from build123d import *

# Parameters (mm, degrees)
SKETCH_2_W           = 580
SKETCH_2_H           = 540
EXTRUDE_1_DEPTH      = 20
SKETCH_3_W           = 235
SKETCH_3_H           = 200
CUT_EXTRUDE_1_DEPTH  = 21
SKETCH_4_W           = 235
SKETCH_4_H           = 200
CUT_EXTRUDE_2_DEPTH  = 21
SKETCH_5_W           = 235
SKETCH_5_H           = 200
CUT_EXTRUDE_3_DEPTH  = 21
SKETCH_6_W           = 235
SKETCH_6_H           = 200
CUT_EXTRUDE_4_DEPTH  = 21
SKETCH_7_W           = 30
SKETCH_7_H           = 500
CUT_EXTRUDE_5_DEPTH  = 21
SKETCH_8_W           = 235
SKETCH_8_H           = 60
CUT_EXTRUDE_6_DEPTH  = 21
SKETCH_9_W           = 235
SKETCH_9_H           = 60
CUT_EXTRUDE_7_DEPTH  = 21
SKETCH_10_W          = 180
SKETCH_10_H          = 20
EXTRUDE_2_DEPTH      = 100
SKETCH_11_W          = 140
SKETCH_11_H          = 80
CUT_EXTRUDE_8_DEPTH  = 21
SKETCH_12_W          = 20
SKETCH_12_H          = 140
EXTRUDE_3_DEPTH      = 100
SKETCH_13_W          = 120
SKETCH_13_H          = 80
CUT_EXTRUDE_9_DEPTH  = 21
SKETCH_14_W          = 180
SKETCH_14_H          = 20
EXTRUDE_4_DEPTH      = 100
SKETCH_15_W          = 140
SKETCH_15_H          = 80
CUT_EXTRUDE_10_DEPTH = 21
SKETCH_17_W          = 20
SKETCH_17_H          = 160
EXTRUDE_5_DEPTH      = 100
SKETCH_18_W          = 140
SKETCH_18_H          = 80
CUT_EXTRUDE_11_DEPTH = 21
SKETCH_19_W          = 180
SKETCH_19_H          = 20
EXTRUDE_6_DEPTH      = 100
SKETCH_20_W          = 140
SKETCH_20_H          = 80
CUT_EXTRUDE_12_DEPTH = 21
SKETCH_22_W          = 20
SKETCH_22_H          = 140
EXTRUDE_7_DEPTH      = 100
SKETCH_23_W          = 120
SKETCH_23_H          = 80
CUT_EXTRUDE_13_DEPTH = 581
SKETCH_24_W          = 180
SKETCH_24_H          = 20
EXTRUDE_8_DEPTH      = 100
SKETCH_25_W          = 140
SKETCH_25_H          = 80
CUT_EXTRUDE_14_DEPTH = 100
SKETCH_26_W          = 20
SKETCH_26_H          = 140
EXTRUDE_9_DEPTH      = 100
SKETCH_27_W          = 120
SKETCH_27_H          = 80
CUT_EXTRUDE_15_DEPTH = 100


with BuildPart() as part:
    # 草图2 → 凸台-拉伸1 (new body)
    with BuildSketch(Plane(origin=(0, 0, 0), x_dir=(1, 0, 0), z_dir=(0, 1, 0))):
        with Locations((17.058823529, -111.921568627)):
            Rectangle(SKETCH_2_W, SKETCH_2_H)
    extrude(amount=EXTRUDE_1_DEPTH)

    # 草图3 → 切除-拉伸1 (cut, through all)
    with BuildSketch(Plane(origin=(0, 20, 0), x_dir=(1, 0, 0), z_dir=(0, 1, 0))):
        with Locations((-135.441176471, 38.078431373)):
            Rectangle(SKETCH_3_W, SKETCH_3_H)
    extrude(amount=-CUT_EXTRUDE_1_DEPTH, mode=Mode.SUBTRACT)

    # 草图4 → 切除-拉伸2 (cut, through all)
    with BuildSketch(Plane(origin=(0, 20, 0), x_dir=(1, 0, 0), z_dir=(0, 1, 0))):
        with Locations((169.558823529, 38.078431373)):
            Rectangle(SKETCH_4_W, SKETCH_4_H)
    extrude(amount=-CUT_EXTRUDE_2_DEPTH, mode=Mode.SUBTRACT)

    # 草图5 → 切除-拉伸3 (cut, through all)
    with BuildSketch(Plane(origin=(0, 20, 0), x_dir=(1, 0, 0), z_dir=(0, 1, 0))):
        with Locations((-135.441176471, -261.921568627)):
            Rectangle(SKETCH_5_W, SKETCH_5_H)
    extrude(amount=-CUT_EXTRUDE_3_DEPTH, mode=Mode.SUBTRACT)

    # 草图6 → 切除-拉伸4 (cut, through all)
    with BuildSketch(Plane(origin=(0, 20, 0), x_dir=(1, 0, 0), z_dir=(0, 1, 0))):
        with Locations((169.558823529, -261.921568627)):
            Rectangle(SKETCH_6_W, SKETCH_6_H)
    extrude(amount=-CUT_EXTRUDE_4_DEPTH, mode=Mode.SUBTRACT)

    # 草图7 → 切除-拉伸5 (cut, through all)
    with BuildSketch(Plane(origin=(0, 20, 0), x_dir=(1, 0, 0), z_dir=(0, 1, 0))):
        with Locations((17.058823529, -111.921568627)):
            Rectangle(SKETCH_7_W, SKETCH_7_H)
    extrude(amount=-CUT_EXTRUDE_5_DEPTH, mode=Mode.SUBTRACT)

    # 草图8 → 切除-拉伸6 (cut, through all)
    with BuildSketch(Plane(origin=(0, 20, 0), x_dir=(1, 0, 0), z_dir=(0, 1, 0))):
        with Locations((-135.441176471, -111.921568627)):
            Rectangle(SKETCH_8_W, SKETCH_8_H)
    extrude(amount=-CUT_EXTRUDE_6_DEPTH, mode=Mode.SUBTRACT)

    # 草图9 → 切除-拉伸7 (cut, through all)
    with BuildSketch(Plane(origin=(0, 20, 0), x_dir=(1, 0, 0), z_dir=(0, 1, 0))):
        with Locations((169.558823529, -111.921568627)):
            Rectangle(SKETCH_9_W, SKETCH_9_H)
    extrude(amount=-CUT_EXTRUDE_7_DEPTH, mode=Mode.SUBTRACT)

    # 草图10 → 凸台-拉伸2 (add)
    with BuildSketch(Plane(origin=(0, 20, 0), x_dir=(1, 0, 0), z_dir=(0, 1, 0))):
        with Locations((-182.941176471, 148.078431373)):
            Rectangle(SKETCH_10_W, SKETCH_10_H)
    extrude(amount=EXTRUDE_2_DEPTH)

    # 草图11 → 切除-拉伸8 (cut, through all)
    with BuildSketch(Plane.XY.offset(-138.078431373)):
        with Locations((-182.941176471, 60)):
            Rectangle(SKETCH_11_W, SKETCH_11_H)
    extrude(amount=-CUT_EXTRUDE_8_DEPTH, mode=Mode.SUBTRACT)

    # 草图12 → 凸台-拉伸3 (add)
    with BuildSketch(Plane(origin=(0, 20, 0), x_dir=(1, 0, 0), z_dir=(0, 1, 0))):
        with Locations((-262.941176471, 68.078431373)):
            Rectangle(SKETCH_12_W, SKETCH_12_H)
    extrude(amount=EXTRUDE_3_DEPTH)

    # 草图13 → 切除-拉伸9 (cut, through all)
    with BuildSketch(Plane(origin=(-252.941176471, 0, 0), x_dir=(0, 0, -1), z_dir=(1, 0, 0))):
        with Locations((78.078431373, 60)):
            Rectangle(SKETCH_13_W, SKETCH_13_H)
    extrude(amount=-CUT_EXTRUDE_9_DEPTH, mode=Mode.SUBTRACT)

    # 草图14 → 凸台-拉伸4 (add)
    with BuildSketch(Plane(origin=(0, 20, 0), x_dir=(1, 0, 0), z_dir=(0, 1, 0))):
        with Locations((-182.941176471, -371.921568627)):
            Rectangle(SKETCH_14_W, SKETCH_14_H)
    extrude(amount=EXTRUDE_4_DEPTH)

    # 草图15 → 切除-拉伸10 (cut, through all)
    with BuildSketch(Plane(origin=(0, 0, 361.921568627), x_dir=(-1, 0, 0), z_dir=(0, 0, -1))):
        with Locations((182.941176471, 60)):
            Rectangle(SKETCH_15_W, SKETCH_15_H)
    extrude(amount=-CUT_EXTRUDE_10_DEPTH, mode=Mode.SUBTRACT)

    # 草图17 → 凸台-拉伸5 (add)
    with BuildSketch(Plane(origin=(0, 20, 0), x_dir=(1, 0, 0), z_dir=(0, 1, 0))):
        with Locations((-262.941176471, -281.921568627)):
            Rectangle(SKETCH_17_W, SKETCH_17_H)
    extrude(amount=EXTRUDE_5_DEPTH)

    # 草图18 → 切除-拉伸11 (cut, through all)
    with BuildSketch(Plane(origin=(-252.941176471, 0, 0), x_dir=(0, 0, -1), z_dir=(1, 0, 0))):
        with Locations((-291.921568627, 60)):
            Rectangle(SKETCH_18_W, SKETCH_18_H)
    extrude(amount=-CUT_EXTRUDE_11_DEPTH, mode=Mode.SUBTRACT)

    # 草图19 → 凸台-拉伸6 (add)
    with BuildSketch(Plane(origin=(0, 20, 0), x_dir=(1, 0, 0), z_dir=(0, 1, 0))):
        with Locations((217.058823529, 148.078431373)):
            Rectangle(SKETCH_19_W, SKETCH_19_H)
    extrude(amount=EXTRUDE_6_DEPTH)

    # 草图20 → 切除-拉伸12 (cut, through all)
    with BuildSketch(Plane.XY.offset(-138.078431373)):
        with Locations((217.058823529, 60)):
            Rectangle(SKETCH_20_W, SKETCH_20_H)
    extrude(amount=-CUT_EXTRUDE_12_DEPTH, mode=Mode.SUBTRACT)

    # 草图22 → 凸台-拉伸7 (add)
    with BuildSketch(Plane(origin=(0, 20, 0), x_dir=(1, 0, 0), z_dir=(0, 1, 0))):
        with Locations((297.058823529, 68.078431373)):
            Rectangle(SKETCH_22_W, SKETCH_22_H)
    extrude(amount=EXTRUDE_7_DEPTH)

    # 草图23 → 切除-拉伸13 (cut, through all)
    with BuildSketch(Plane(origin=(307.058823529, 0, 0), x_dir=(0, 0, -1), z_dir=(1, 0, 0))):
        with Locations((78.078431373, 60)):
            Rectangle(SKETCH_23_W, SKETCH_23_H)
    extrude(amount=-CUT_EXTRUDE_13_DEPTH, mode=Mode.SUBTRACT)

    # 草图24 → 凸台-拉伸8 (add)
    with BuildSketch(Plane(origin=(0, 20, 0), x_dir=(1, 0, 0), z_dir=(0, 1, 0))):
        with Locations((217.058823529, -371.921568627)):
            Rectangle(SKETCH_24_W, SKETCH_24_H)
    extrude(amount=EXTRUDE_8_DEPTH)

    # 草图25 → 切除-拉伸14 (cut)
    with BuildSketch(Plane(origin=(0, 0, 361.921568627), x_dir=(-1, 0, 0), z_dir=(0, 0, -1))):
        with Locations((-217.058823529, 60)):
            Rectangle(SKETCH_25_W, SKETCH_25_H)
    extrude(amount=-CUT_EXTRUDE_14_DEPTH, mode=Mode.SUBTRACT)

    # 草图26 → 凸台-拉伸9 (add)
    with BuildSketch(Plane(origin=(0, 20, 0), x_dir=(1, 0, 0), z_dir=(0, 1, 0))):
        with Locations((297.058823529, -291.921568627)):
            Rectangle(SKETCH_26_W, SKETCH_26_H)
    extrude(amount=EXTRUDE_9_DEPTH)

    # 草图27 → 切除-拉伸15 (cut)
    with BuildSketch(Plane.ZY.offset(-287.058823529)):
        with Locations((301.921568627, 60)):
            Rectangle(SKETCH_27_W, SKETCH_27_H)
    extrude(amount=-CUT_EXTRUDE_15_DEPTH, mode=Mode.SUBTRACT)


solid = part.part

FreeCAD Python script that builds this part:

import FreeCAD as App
import Part
import Sketcher

V = App.Vector

doc = App.newDocument("Part")
params = doc.addObject("Spreadsheet::Sheet", "Params")
for row, (alias, value) in enumerate([
    ("sketch1_width", "580 mm"),
    ("sketch1_height", "540 mm"),
    ("pad1_length", "20 mm"),
    ("sketch2_width", "235 mm"),
    ("sketch2_height", "200 mm"),
    ("sketch3_width", "235 mm"),
    ("sketch3_height", "200 mm"),
    ("sketch4_width", "235 mm"),
    ("sketch4_height", "200 mm"),
    ("sketch5_width", "235 mm"),
    ("sketch5_height", "200 mm"),
    ("sketch6_width", "30 mm"),
    ("sketch6_height", "500 mm"),
    ("sketch7_width", "235 mm"),
    ("sketch7_height", "60 mm"),
    ("sketch8_width", "235 mm"),
    ("sketch8_height", "60 mm"),
    ("sketch9_width", "180 mm"),
    ("sketch9_height", "20 mm"),
    ("pad2_length", "100 mm"),
    ("sketch10_width", "140 mm"),
    ("sketch10_height", "80 mm"),
    ("sketch11_width", "20 mm"),
    ("sketch11_height", "140 mm"),
    ("pad3_length", "100 mm"),
    ("sketch12_width", "80 mm"),
    ("sketch12_height", "120 mm"),
    ("sketch13_width", "180 mm"),
    ("sketch13_height", "20 mm"),
    ("pad4_length", "100 mm"),
    ("sketch14_width", "140 mm"),
    ("sketch14_height", "80 mm"),
    ("sketch15_width", "20 mm"),
    ("sketch15_height", "160 mm"),
    ("pad5_length", "100 mm"),
    ("sketch16_width", "80 mm"),
    ("sketch16_height", "140 mm"),
    ("sketch17_width", "180 mm"),
    ("sketch17_height", "20 mm"),
    ("pad6_length", "100 mm"),
    ("sketch18_width", "140 mm"),
    ("sketch18_height", "80 mm"),
    ("sketch19_width", "20 mm"),
    ("sketch19_height", "140 mm"),
    ("pad7_length", "100 mm"),
    ("sketch20_width", "80 mm"),
    ("sketch20_height", "120 mm"),
    ("sketch21_width", "180 mm"),
    ("sketch21_height", "20 mm"),
    ("pad8_length", "100 mm"),
    ("sketch22_width", "140 mm"),
    ("sketch22_height", "80 mm"),
    ("pocket14_length", "100 mm"),
    ("sketch23_width", "20 mm"),
    ("sketch23_height", "140 mm"),
    ("pad9_length", "100 mm"),
    ("sketch24_width", "80 mm"),
    ("sketch24_height", "120 mm"),
    ("pocket15_length", "100 mm"),
], start=1):
    params.set(f"A{row}", alias)
    params.set(f"B{row}", "=" + value)
    params.setAlias(f"B{row}", alias)

body = doc.addObject("PartDesign::Body", "Body")

# Sketch on XZ plane
sketch1 = doc.addObject("Sketcher::SketchObject", "Sketch")
body.addObject(sketch1)
sketch1.AttachmentSupport = (doc.XZ_Plane, [""])
sketch1.MapMode = "FlatFace"
sketch1.addGeometry(Part.LineSegment(V(-273, -158, 0), V(-273, 382, 0)), False)
sketch1.addGeometry(Part.LineSegment(V(-273, 382, 0), V(307, 382, 0)), False)
sketch1.addGeometry(Part.LineSegment(V(307, 382, 0), V(307, -158, 0)), False)
sketch1.addGeometry(Part.LineSegment(V(307, -158, 0), V(-273, -158, 0)), False)
sketch1.addConstraint(Sketcher.Constraint("Coincident", 0, 2, 1, 1))
sketch1.addConstraint(Sketcher.Constraint("Coincident", 1, 2, 2, 1))
sketch1.addConstraint(Sketcher.Constraint("Coincident", 2, 2, 3, 1))
sketch1.addConstraint(Sketcher.Constraint("Coincident", 3, 2, 0, 1))
sketch1.addConstraint(Sketcher.Constraint("Vertical", 0))
sketch1.addConstraint(Sketcher.Constraint("Horizontal", 1))
sketch1.addConstraint(Sketcher.Constraint("Vertical", 2))
sketch1.addConstraint(Sketcher.Constraint("Horizontal", 3))
sketch1.addConstraint(Sketcher.Constraint("DistanceX", 1, 1, 1, 2, 580.0))
sketch1.addConstraint(Sketcher.Constraint("DistanceY", 0, 1, 0, 2, 540.0))
sketch1.addConstraint(Sketcher.Constraint("DistanceY", -1, 1, 0, 2, 381.921569))
sketch1.addConstraint(Sketcher.Constraint("DistanceX", 0, 2, -1, 1, 272.941176))
sketch1.setExpression("Constraints[8]", "Params.sketch1_width")
sketch1.setExpression("Constraints[9]", "Params.sketch1_height")
pad1 = doc.addObject("PartDesign::Pad", "Pad")
body.addObject(pad1)
pad1.Profile = sketch1
pad1.setExpression("Length", "Params.pad1_length")
pad1.Reversed = True

# Sketch on XZ plane
sketch2 = doc.addObject("Sketcher::SketchObject", "Sketch001")
body.addObject(sketch2)
sketch2.AttachmentSupport = (doc.XZ_Plane, [""])
sketch2.MapMode = "FlatFace"
sketch2.AttachmentOffset = App.Placement(V(0, 0, -20), App.Rotation())
sketch2.addGeometry(Part.LineSegment(V(-253, -138, 0), V(-253, 62, 0)), False)
sketch2.addGeometry(Part.LineSegment(V(-253, 62, 0), V(-18, 62, 0)), False)
sketch2.addGeometry(Part.LineSegment(V(-18, 62, 0), V(-18, -138, 0)), False)
sketch2.addGeometry(Part.LineSegment(V(-18, -138, 0), V(-253, -138, 0)), False)
sketch2.addConstraint(Sketcher.Constraint("Coincident", 0, 2, 1, 1))
sketch2.addConstraint(Sketcher.Constraint("Coincident", 1, 2, 2, 1))
sketch2.addConstraint(Sketcher.Constraint("Coincident", 2, 2, 3, 1))
sketch2.addConstraint(Sketcher.Constraint("Coincident", 3, 2, 0, 1))
sketch2.addConstraint(Sketcher.Constraint("Vertical", 0))
sketch2.addConstraint(Sketcher.Constraint("Horizontal", 1))
sketch2.addConstraint(Sketcher.Constraint("Vertical", 2))
sketch2.addConstraint(Sketcher.Constraint("Horizontal", 3))
sketch2.addConstraint(Sketcher.Constraint("DistanceX", 1, 1, 1, 2, 235.0))
sketch2.addConstraint(Sketcher.Constraint("DistanceY", 0, 1, 0, 2, 200.0))
sketch2.addConstraint(Sketcher.Constraint("DistanceY", -1, 1, 0, 2, 61.921569))
sketch2.addConstraint(Sketcher.Constraint("DistanceX", 0, 2, -1, 1, 252.941176))
sketch2.setExpression("Constraints[8]", "Params.sketch2_width")
sketch2.setExpression("Constraints[9]", "Params.sketch2_height")
pocket1 = doc.addObject("PartDesign::Pocket", "Pocket")
body.addObject(pocket1)
pocket1.Profile = sketch2
pocket1.Type = "ThroughAll"
pocket1.Reversed = True

# Sketch on XZ plane
sketch3 = doc.addObject("Sketcher::SketchObject", "Sketch002")
body.addObject(sketch3)
sketch3.AttachmentSupport = (doc.XZ_Plane, [""])
sketch3.MapMode = "FlatFace"
sketch3.AttachmentOffset = App.Placement(V(0, 0, -20), App.Rotation())
sketch3.addGeometry(Part.LineSegment(V(52, -138, 0), V(52, 62, 0)), False)
sketch3.addGeometry(Part.LineSegment(V(52, 62, 0), V(287, 62, 0)), False)
sketch3.addGeometry(Part.LineSegment(V(287, 62, 0), V(287, -138, 0)), False)
sketch3.addGeometry(Part.LineSegment(V(287, -138, 0), V(52, -138, 0)), False)
sketch3.addConstraint(Sketcher.Constraint("Coincident", 0, 2, 1, 1))
sketch3.addConstraint(Sketcher.Constraint("Coincident", 1, 2, 2, 1))
sketch3.addConstraint(Sketcher.Constraint("Coincident", 2, 2, 3, 1))
sketch3.addConstraint(Sketcher.Constraint("Coincident", 3, 2, 0, 1))
sketch3.addConstraint(Sketcher.Constraint("Vertical", 0))
sketch3.addConstraint(Sketcher.Constraint("Horizontal", 1))
sketch3.addConstraint(Sketcher.Constraint("Vertical", 2))
sketch3.addConstraint(Sketcher.Constraint("Horizontal", 3))
sketch3.addConstraint(Sketcher.Constraint("DistanceX", 1, 1, 1, 2, 235.0))
sketch3.addConstraint(Sketcher.Constraint("DistanceY", 0, 1, 0, 2, 200.0))
sketch3.addConstraint(Sketcher.Constraint("DistanceY", -1, 1, 0, 2, 61.921569))
sketch3.addConstraint(Sketcher.Constraint("DistanceX", -1, 1, 0, 2, 52.058824))
sketch3.setExpression("Constraints[8]", "Params.sketch3_width")
sketch3.setExpression("Constraints[9]", "Params.sketch3_height")
pocket2 = doc.addObject("PartDesign::Pocket", "Pocket001")
body.addObject(pocket2)
pocket2.Profile = sketch3
pocket2.Type = "ThroughAll"
pocket2.Reversed = True

# Sketch on XZ plane
sketch4 = doc.addObject("Sketcher::SketchObject", "Sketch003")
body.addObject(sketch4)
sketch4.AttachmentSupport = (doc.XZ_Plane, [""])
sketch4.MapMode = "FlatFace"
sketch4.AttachmentOffset = App.Placement(V(0, 0, -20), App.Rotation())
sketch4.addGeometry(Part.LineSegment(V(-253, 162, 0), V(-253, 362, 0)), False)
sketch4.addGeometry(Part.LineSegment(V(-253, 362, 0), V(-18, 362, 0)), False)
sketch4.addGeometry(Part.LineSegment(V(-18, 362, 0), V(-18, 162, 0)), False)
sketch4.addGeometry(Part.LineSegment(V(-18, 162, 0), V(-253, 162, 0)), False)
sketch4.addConstraint(Sketcher.Constraint("Coincident", 0, 2, 1, 1))
sketch4.addConstraint(Sketcher.Constraint("Coincident", 1, 2, 2, 1))
sketch4.addConstraint(Sketcher.Constraint("Coincident", 2, 2, 3, 1))
sketch4.addConstraint(Sketcher.Constraint("Coincident", 3, 2, 0, 1))
sketch4.addConstraint(Sketcher.Constraint("Vertical", 0))
sketch4.addConstraint(Sketcher.Constraint("Horizontal", 1))
sketch4.addConstraint(Sketcher.Constraint("Vertical", 2))
sketch4.addConstraint(Sketcher.Constraint("Horizontal", 3))
sketch4.addConstraint(Sketcher.Constraint("DistanceX", 1, 1, 1, 2, 235.0))
sketch4.addConstraint(Sketcher.Constraint("DistanceY", 0, 1, 0, 2, 200.0))
sketch4.addConstraint(Sketcher.Constraint("DistanceY", -1, 1, 0, 2, 361.921569))
sketch4.addConstraint(Sketcher.Constraint("DistanceX", 0, 2, -1, 1, 252.941176))
sketch4.setExpression("Constraints[8]", "Params.sketch4_width")
sketch4.setExpression("Constraints[9]", "Params.sketch4_height")
pocket3 = doc.addObject("PartDesign::Pocket", "Pocket002")
body.addObject(pocket3)
pocket3.Profile = sketch4
pocket3.Type = "ThroughAll"
pocket3.Reversed = True

# Sketch on XZ plane
sketch5 = doc.addObject("Sketcher::SketchObject", "Sketch004")
body.addObject(sketch5)
sketch5.AttachmentSupport = (doc.XZ_Plane, [""])
sketch5.MapMode = "FlatFace"
sketch5.AttachmentOffset = App.Placement(V(0, 0, -20), App.Rotation())
sketch5.addGeometry(Part.LineSegment(V(52, 162, 0), V(52, 362, 0)), False)
sketch5.addGeometry(Part.LineSegment(V(52, 362, 0), V(287, 362, 0)), False)
sketch5.addGeometry(Part.LineSegment(V(287, 362, 0), V(287, 162, 0)), False)
sketch5.addGeometry(Part.LineSegment(V(287, 162, 0), V(52, 162, 0)), False)
sketch5.addConstraint(Sketcher.Constraint("Coincident", 0, 2, 1, 1))
sketch5.addConstraint(Sketcher.Constraint("Coincident", 1, 2, 2, 1))
sketch5.addConstraint(Sketcher.Constraint("Coincident", 2, 2, 3, 1))
sketch5.addConstraint(Sketcher.Constraint("Coincident", 3, 2, 0, 1))
sketch5.addConstraint(Sketcher.Constraint("Vertical", 0))
sketch5.addConstraint(Sketcher.Constraint("Horizontal", 1))
sketch5.addConstraint(Sketcher.Constraint("Vertical", 2))
sketch5.addConstraint(Sketcher.Constraint("Horizontal", 3))
sketch5.addConstraint(Sketcher.Constraint("DistanceX", 1, 1, 1, 2, 235.0))
sketch5.addConstraint(Sketcher.Constraint("DistanceY", 0, 1, 0, 2, 200.0))
sketch5.addConstraint(Sketcher.Constraint("DistanceY", -1, 1, 0, 2, 361.921569))
sketch5.addConstraint(Sketcher.Constraint("DistanceX", -1, 1, 0, 2, 52.058824))
sketch5.setExpression("Constraints[8]", "Params.sketch5_width")
sketch5.setExpression("Constraints[9]", "Params.sketch5_height")
pocket4 = doc.addObject("PartDesign::Pocket", "Pocket003")
body.addObject(pocket4)
pocket4.Profile = sketch5
pocket4.Type = "ThroughAll"
pocket4.Reversed = True

# Sketch on XZ plane
sketch6 = doc.addObject("Sketcher::SketchObject", "Sketch005")
body.addObject(sketch6)
sketch6.AttachmentSupport = (doc.XZ_Plane, [""])
sketch6.MapMode = "FlatFace"
sketch6.AttachmentOffset = App.Placement(V(0, 0, -20), App.Rotation())
sketch6.addGeometry(Part.LineSegment(V(2, -138, 0), V(2, 362, 0)), False)
sketch6.addGeometry(Part.LineSegment(V(2, 362, 0), V(32, 362, 0)), False)
sketch6.addGeometry(Part.LineSegment(V(32, 362, 0), V(32, -138, 0)), False)
sketch6.addGeometry(Part.LineSegment(V(32, -138, 0), V(2, -138, 0)), False)
sketch6.addConstraint(Sketcher.Constraint("Coincident", 0, 2, 1, 1))
sketch6.addConstraint(Sketcher.Constraint("Coincident", 1, 2, 2, 1))
sketch6.addConstraint(Sketcher.Constraint("Coincident", 2, 2, 3, 1))
sketch6.addConstraint(Sketcher.Constraint("Coincident", 3, 2, 0, 1))
sketch6.addConstraint(Sketcher.Constraint("Vertical", 0))
sketch6.addConstraint(Sketcher.Constraint("Horizontal", 1))
sketch6.addConstraint(Sketcher.Constraint("Vertical", 2))
sketch6.addConstraint(Sketcher.Constraint("Horizontal", 3))
sketch6.addConstraint(Sketcher.Constraint("DistanceX", 1, 1, 1, 2, 30.0))
sketch6.addConstraint(Sketcher.Constraint("DistanceY", 0, 1, 0, 2, 500.0))
sketch6.addConstraint(Sketcher.Constraint("DistanceY", -1, 1, 0, 2, 361.921569))
sketch6.addConstraint(Sketcher.Constraint("DistanceX", -1, 1, 0, 2, 2.058824))
sketch6.setExpression("Constraints[8]", "Params.sketch6_width")
sketch6.setExpression("Constraints[9]", "Params.sketch6_height")
pocket5 = doc.addObject("PartDesign::Pocket", "Pocket004")
body.addObject(pocket5)
pocket5.Profile = sketch6
pocket5.Type = "ThroughAll"
pocket5.Reversed = True

# Sketch on XZ plane
sketch7 = doc.addObject("Sketcher::SketchObject", "Sketch006")
body.addObject(sketch7)
sketch7.AttachmentSupport = (doc.XZ_Plane, [""])
sketch7.MapMode = "FlatFace"
sketch7.AttachmentOffset = App.Placement(V(0, 0, -20), App.Rotation())
sketch7.addGeometry(Part.LineSegment(V(-253, 82, 0), V(-253, 142, 0)), False)
sketch7.addGeometry(Part.LineSegment(V(-253, 142, 0), V(-18, 142, 0)), False)
sketch7.addGeometry(Part.LineSegment(V(-18, 142, 0), V(-18, 82, 0)), False)
sketch7.addGeometry(Part.LineSegment(V(-18, 82, 0), V(-253, 82, 0)), False)
sketch7.addConstraint(Sketcher.Constraint("Coincident", 0, 2, 1, 1))
sketch7.addConstraint(Sketcher.Constraint("Coincident", 1, 2, 2, 1))
sketch7.addConstraint(Sketcher.Constraint("Coincident", 2, 2, 3, 1))
sketch7.addConstraint(Sketcher.Constraint("Coincident", 3, 2, 0, 1))
sketch7.addConstraint(Sketcher.Constraint("Vertical", 0))
sketch7.addConstraint(Sketcher.Constraint("Horizontal", 1))
sketch7.addConstraint(Sketcher.Constraint("Vertical", 2))
sketch7.addConstraint(Sketcher.Constraint("Horizontal", 3))
sketch7.addConstraint(Sketcher.Constraint("DistanceX", 1, 1, 1, 2, 235.0))
sketch7.addConstraint(Sketcher.Constraint("DistanceY", 0, 1, 0, 2, 60.0))
sketch7.addConstraint(Sketcher.Constraint("DistanceY", -1, 1, 0, 2, 141.921569))
sketch7.addConstraint(Sketcher.Constraint("DistanceX", 0, 2, -1, 1, 252.941176))
sketch7.setExpression("Constraints[8]", "Params.sketch7_width")
sketch7.setExpression("Constraints[9]", "Params.sketch7_height")
pocket6 = doc.addObject("PartDesign::Pocket", "Pocket005")
body.addObject(pocket6)
pocket6.Profile = sketch7
pocket6.Type = "ThroughAll"
pocket6.Reversed = True

# Sketch on XZ plane
sketch8 = doc.addObject("Sketcher::SketchObject", "Sketch007")
body.addObject(sketch8)
sketch8.AttachmentSupport = (doc.XZ_Plane, [""])
sketch8.MapMode = "FlatFace"
sketch8.AttachmentOffset = App.Placement(V(0, 0, -20), App.Rotation())
sketch8.addGeometry(Part.LineSegment(V(52, 82, 0), V(52, 142, 0)), False)
sketch8.addGeometry(Part.LineSegment(V(52, 142, 0), V(287, 142, 0)), False)
sketch8.addGeometry(Part.LineSegment(V(287, 142, 0), V(287, 82, 0)), False)
sketch8.addGeometry(Part.LineSegment(V(287, 82, 0), V(52, 82, 0)), False)
sketch8.addConstraint(Sketcher.Constraint("Coincident", 0, 2, 1, 1))
sketch8.addConstraint(Sketcher.Constraint("Coincident", 1, 2, 2, 1))
sketch8.addConstraint(Sketcher.Constraint("Coincident", 2, 2, 3, 1))
sketch8.addConstraint(Sketcher.Constraint("Coincident", 3, 2, 0, 1))
sketch8.addConstraint(Sketcher.Constraint("Vertical", 0))
sketch8.addConstraint(Sketcher.Constraint("Horizontal", 1))
sketch8.addConstraint(Sketcher.Constraint("Vertical", 2))
sketch8.addConstraint(Sketcher.Constraint("Horizontal", 3))
sketch8.addConstraint(Sketcher.Constraint("DistanceX", 1, 1, 1, 2, 235.0))
sketch8.addConstraint(Sketcher.Constraint("DistanceY", 0, 1, 0, 2, 60.0))
sketch8.addConstraint(Sketcher.Constraint("DistanceY", -1, 1, 0, 2, 141.921569))
sketch8.addConstraint(Sketcher.Constraint("DistanceX", -1, 1, 0, 2, 52.058824))
sketch8.setExpression("Constraints[8]", "Params.sketch8_width")
sketch8.setExpression("Constraints[9]", "Params.sketch8_height")
pocket7 = doc.addObject("PartDesign::Pocket", "Pocket006")
body.addObject(pocket7)
pocket7.Profile = sketch8
pocket7.Type = "ThroughAll"
pocket7.Reversed = True

# Sketch on XZ plane
sketch9 = doc.addObject("Sketcher::SketchObject", "Sketch008")
body.addObject(sketch9)
sketch9.AttachmentSupport = (doc.XZ_Plane, [""])
sketch9.MapMode = "FlatFace"
sketch9.AttachmentOffset = App.Placement(V(0, 0, -20), App.Rotation())
sketch9.addGeometry(Part.LineSegment(V(-273, -158, 0), V(-273, -138, 0)), False)
sketch9.addGeometry(Part.LineSegment(V(-273, -138, 0), V(-93, -138, 0)), False)
sketch9.addGeometry(Part.LineSegment(V(-93, -138, 0), V(-93, -158, 0)), False)
sketch9.addGeometry(Part.LineSegment(V(-93, -158, 0), V(-273, -158, 0)), False)
sketch9.addConstraint(Sketcher.Constraint("Coincident", 0, 2, 1, 1))
sketch9.addConstraint(Sketcher.Constraint("Coincident", 1, 2, 2, 1))
sketch9.addConstraint(Sketcher.Constraint("Coincident", 2, 2, 3, 1))
sketch9.addConstraint(Sketcher.Constraint("Coincident", 3, 2, 0, 1))
sketch9.addConstraint(Sketcher.Constraint("Vertical", 0))
sketch9.addConstraint(Sketcher.Constraint("Horizontal", 1))
sketch9.addConstraint(Sketcher.Constraint("Vertical", 2))
sketch9.addConstraint(Sketcher.Constraint("Horizontal", 3))
sketch9.addConstraint(Sketcher.Constraint("DistanceX", 1, 1, 1, 2, 180.0))
sketch9.addConstraint(Sketcher.Constraint("DistanceY", 0, 1, 0, 2, 20.0))
sketch9.addConstraint(Sketcher.Constraint("DistanceY", 0, 2, -1, 1, 138.078431))
sketch9.addConstraint(Sketcher.Constraint("DistanceX", 0, 2, -1, 1, 272.941176))
sketch9.setExpression("Constraints[8]", "Params.sketch9_width")
sketch9.setExpression("Constraints[9]", "Params.sketch9_height")
pad2 = doc.addObject("PartDesign::Pad", "Pad001")
body.addObject(pad2)
pad2.Profile = sketch9
pad2.setExpression("Length", "Params.pad2_length")
pad2.Reversed = True

# Sketch on XY plane
sketch10 = doc.addObject("Sketcher::SketchObject", "Sketch009")
body.addObject(sketch10)
sketch10.AttachmentSupport = (doc.XY_Plane, [""])
sketch10.MapMode = "FlatFace"
sketch10.AttachmentOffset = App.Placement(V(0, 0, -138.078431), App.Rotation())
sketch10.addGeometry(Part.LineSegment(V(-253, 100, 0), V(-253, 20, 0)), False)
sketch10.addGeometry(Part.LineSegment(V(-253, 20, 0), V(-113, 20, 0)), False)
sketch10.addGeometry(Part.LineSegment(V(-113, 20, 0), V(-113, 100, 0)), False)
sketch10.addGeometry(Part.LineSegment(V(-113, 100, 0), V(-253, 100, 0)), False)
sketch10.addConstraint(Sketcher.Constraint("Coincident", 0, 2, 1, 1))
sketch10.addConstraint(Sketcher.Constraint("Coincident", 1, 2, 2, 1))
sketch10.addConstraint(Sketcher.Constraint("Coincident", 2, 2, 3, 1))
sketch10.addConstraint(Sketcher.Constraint("Coincident", 3, 2, 0, 1))
sketch10.addConstraint(Sketcher.Constraint("Vertical", 0))
sketch10.addConstraint(Sketcher.Constraint("Horizontal", 1))
sketch10.addConstraint(Sketcher.Constraint("Vertical", 2))
sketch10.addConstraint(Sketcher.Constraint("Horizontal", 3))
sketch10.addConstraint(Sketcher.Constraint("DistanceX", 1, 1, 1, 2, 140.0))
sketch10.addConstraint(Sketcher.Constraint("DistanceY", 0, 2, 0, 1, 80.0))
sketch10.addConstraint(Sketcher.Constraint("DistanceY", -1, 1, 0, 2, 20.0))
sketch10.addConstraint(Sketcher.Constraint("DistanceX", 0, 2, -1, 1, 252.941176))
sketch10.setExpression("Constraints[8]", "Params.sketch10_width")
sketch10.setExpression("Constraints[9]", "Params.sketch10_height")
pocket8 = doc.addObject("PartDesign::Pocket", "Pocket007")
body.addObject(pocket8)
pocket8.Profile = sketch10
pocket8.Type = "ThroughAll"

# Sketch on XZ plane
sketch11 = doc.addObject("Sketcher::SketchObject", "Sketch010")
body.addObject(sketch11)
sketch11.AttachmentSupport = (doc.XZ_Plane, [""])
sketch11.MapMode = "FlatFace"
sketch11.AttachmentOffset = App.Placement(V(0, 0, -20), App.Rotation())
sketch11.addGeometry(Part.LineSegment(V(-273, -138, 0), V(-273, 2, 0)), False)
sketch11.addGeometry(Part.LineSegment(V(-273, 2, 0), V(-253, 2, 0)), False)
sketch11.addGeometry(Part.LineSegment(V(-253, 2, 0), V(-253, -138, 0)), False)
sketch11.addGeometry(Part.LineSegment(V(-253, -138, 0), V(-273, -138, 0)), False)
sketch11.addConstraint(Sketcher.Constraint("Coincident", 0, 2, 1, 1))
sketch11.addConstraint(Sketcher.Constraint("Coincident", 1, 2, 2, 1))
sketch11.addConstraint(Sketcher.Constraint("Coincident", 2, 2, 3, 1))
sketch11.addConstraint(Sketcher.Constraint("Coincident", 3, 2, 0, 1))
sketch11.addConstraint(Sketcher.Constraint("Vertical", 0))
sketch11.addConstraint(Sketcher.Constraint("Horizontal", 1))
sketch11.addConstraint(Sketcher.Constraint("Vertical", 2))
sketch11.addConstraint(Sketcher.Constraint("Horizontal", 3))
sketch11.addConstraint(Sketcher.Constraint("DistanceX", 1, 1, 1, 2, 20.0))
sketch11.addConstraint(Sketcher.Constraint("DistanceY", 0, 1, 0, 2, 140.0))
sketch11.addConstraint(Sketcher.Constraint("DistanceY", -1, 1, 0, 2, 1.921569))
sketch11.addConstraint(Sketcher.Constraint("DistanceX", 0, 2, -1, 1, 272.941176))
sketch11.setExpression("Constraints[8]", "Params.sketch11_width")
sketch11.setExpression("Constraints[9]", "Params.sketch11_height")
pad3 = doc.addObject("PartDesign::Pad", "Pad002")
body.addObject(pad3)
pad3.Profile = sketch11
pad3.setExpression("Length", "Params.pad3_length")
pad3.Reversed = True

# Sketch on YZ plane
sketch12 = doc.addObject("Sketcher::SketchObject", "Sketch011")
body.addObject(sketch12)
sketch12.AttachmentSupport = (doc.YZ_Plane, [""])
sketch12.MapMode = "FlatFace"
sketch12.AttachmentOffset = App.Placement(V(0, 0, -252.941176), App.Rotation())
sketch12.addGeometry(Part.LineSegment(V(100, -18, 0), V(20, -18, 0)), False)
sketch12.addGeometry(Part.LineSegment(V(20, -18, 0), V(20, -138, 0)), False)
sketch12.addGeometry(Part.LineSegment(V(20, -138, 0), V(100, -138, 0)), False)
sketch12.addGeometry(Part.LineSegment(V(100, -138, 0), V(100, -18, 0)), False)
sketch12.addConstraint(Sketcher.Constraint("Coincident", 0, 2, 1, 1))
sketch12.addConstraint(Sketcher.Constraint("Coincident", 1, 2, 2, 1))
sketch12.addConstraint(Sketcher.Constraint("Coincident", 2, 2, 3, 1))
sketch12.addConstraint(Sketcher.Constraint("Coincident", 3, 2, 0, 1))
sketch12.addConstraint(Sketcher.Constraint("Horizontal", 0))
sketch12.addConstraint(Sketcher.Constraint("Vertical", 1))
sketch12.addConstraint(Sketcher.Constraint("Horizontal", 2))
sketch12.addConstraint(Sketcher.Constraint("Vertical", 3))
sketch12.addConstraint(Sketcher.Constraint("DistanceX", 0, 2, 0, 1, 80.0))
sketch12.addConstraint(Sketcher.Constraint("DistanceY", 1, 2, 1, 1, 120.0))
sketch12.addConstraint(Sketcher.Constraint("DistanceX", -1, 1, 0, 2, 20.0))
sketch12.addConstraint(Sketcher.Constraint("DistanceY", 0, 2, -1, 1, 18.078431))
sketch12.setExpression("Constraints[8]", "Params.sketch12_width")
sketch12.setExpression("Constraints[9]", "Params.sketch12_height")
pocket9 = doc.addObject("PartDesign::Pocket", "Pocket008")
body.addObject(pocket9)
pocket9.Profile = sketch12
pocket9.Type = "ThroughAll"

# Sketch on XZ plane
sketch13 = doc.addObject("Sketcher::SketchObject", "Sketch012")
body.addObject(sketch13)
sketch13.AttachmentSupport = (doc.XZ_Plane, [""])
sketch13.MapMode = "FlatFace"
sketch13.AttachmentOffset = App.Placement(V(0, 0, -20), App.Rotation())
sketch13.addGeometry(Part.LineSegment(V(-273, 362, 0), V(-273, 382, 0)), False)
sketch13.addGeometry(Part.LineSegment(V(-273, 382, 0), V(-93, 382, 0)), False)
sketch13.addGeometry(Part.LineSegment(V(-93, 382, 0), V(-93, 362, 0)), False)
sketch13.addGeometry(Part.LineSegment(V(-93, 362, 0), V(-273, 362, 0)), False)
sketch13.addConstraint(Sketcher.Constraint("Coincident", 0, 2, 1, 1))
sketch13.addConstraint(Sketcher.Constraint("Coincident", 1, 2, 2, 1))
sketch13.addConstraint(Sketcher.Constraint("Coincident", 2, 2, 3, 1))
sketch13.addConstraint(Sketcher.Constraint("Coincident", 3, 2, 0, 1))
sketch13.addConstraint(Sketcher.Constraint("Vertical", 0))
sketch13.addConstraint(Sketcher.Constraint("Horizontal", 1))
sketch13.addConstraint(Sketcher.Constraint("Vertical", 2))
sketch13.addConstraint(Sketcher.Constraint("Horizontal", 3))
sketch13.addConstraint(Sketcher.Constraint("DistanceX", 1, 1, 1, 2, 180.0))
sketch13.addConstraint(Sketcher.Constraint("DistanceY", 0, 1, 0, 2, 20.0))
sketch13.addConstraint(Sketcher.Constraint("DistanceY", -1, 1, 0, 2, 381.921569))
sketch13.addConstraint(Sketcher.Constraint("DistanceX", 0, 2, -1, 1, 272.941176))
sketch13.setExpression("Constraints[8]", "Params.sketch13_width")
sketch13.setExpression("Constraints[9]", "Params.sketch13_height")
pad4 = doc.addObject("PartDesign::Pad", "Pad003")
body.addObject(pad4)
pad4.Profile = sketch13
pad4.setExpression("Length", "Params.pad4_length")
pad4.Reversed = True

# Sketch on XY plane
sketch14 = doc.addObject("Sketcher::SketchObject", "Sketch013")
body.addObject(sketch14)
sketch14.AttachmentSupport = (doc.XY_Plane, [""])
sketch14.MapMode = "FlatFace"
sketch14.AttachmentOffset = App.Placement(V(0, 0, 361.921569), App.Rotation())
sketch14.addGeometry(Part.LineSegment(V(-113, 100, 0), V(-113, 20, 0)), False)
sketch14.addGeometry(Part.LineSegment(V(-113, 20, 0), V(-253, 20, 0)), False)
sketch14.addGeometry(Part.LineSegment(V(-253, 20, 0), V(-253, 100, 0)), False)
sketch14.addGeometry(Part.LineSegment(V(-253, 100, 0), V(-113, 100, 0)), False)
sketch14.addConstraint(Sketcher.Constraint("Coincident", 0, 2, 1, 1))
sketch14.addConstraint(Sketcher.Constraint("Coincident", 1, 2, 2, 1))
sketch14.addConstraint(Sketcher.Constraint("Coincident", 2, 2, 3, 1))
sketch14.addConstraint(Sketcher.Constraint("Coincident", 3, 2, 0, 1))
sketch14.addConstraint(Sketcher.Constraint("Vertical", 0))
sketch14.addConstraint(Sketcher.Constraint("Horizontal", 1))
sketch14.addConstraint(Sketcher.Constraint("Vertical", 2))
sketch14.addConstraint(Sketcher.Constraint("Horizontal", 3))
sketch14.addConstraint(Sketcher.Constraint("DistanceX", 1, 2, 1, 1, 140.0))
sketch14.addConstraint(Sketcher.Constraint("DistanceY", 0, 2, 0, 1, 80.0))
sketch14.addConstraint(Sketcher.Constraint("DistanceY", -1, 1, 0, 2, 20.0))
sketch14.addConstraint(Sketcher.Constraint("DistanceX", 0, 2, -1, 1, 112.941176))
sketch14.setExpression("Constraints[8]", "Params.sketch14_width")
sketch14.setExpression("Constraints[9]", "Params.sketch14_height")
pocket10 = doc.addObject("PartDesign::Pocket", "Pocket009")
body.addObject(pocket10)
pocket10.Profile = sketch14
pocket10.Type = "ThroughAll"
pocket10.Reversed = True

# Sketch on XZ plane
sketch15 = doc.addObject("Sketcher::SketchObject", "Sketch014")
body.addObject(sketch15)
sketch15.AttachmentSupport = (doc.XZ_Plane, [""])
sketch15.MapMode = "FlatFace"
sketch15.AttachmentOffset = App.Placement(V(0, 0, -20), App.Rotation())
sketch15.addGeometry(Part.LineSegment(V(-273, 202, 0), V(-273, 362, 0)), False)
sketch15.addGeometry(Part.LineSegment(V(-273, 362, 0), V(-253, 362, 0)), False)
sketch15.addGeometry(Part.LineSegment(V(-253, 362, 0), V(-253, 202, 0)), False)
sketch15.addGeometry(Part.LineSegment(V(-253, 202, 0), V(-273, 202, 0)), False)
sketch15.addConstraint(Sketcher.Constraint("Coincident", 0, 2, 1, 1))
sketch15.addConstraint(Sketcher.Constraint("Coincident", 1, 2, 2, 1))
sketch15.addConstraint(Sketcher.Constraint("Coincident", 2, 2, 3, 1))
sketch15.addConstraint(Sketcher.Constraint("Coincident", 3, 2, 0, 1))
sketch15.addConstraint(Sketcher.Constraint("Vertical", 0))
sketch15.addConstraint(Sketcher.Constraint("Horizontal", 1))
sketch15.addConstraint(Sketcher.Constraint("Vertical", 2))
sketch15.addConstraint(Sketcher.Constraint("Horizontal", 3))
sketch15.addConstraint(Sketcher.Constraint("DistanceX", 1, 1, 1, 2, 20.0))
sketch15.addConstraint(Sketcher.Constraint("DistanceY", 0, 1, 0, 2, 160.0))
sketch15.addConstraint(Sketcher.Constraint("DistanceY", -1, 1, 0, 2, 361.921569))
sketch15.addConstraint(Sketcher.Constraint("DistanceX", 0, 2, -1, 1, 272.941176))
sketch15.setExpression("Constraints[8]", "Params.sketch15_width")
sketch15.setExpression("Constraints[9]", "Params.sketch15_height")
pad5 = doc.addObject("PartDesign::Pad", "Pad004")
body.addObject(pad5)
pad5.Profile = sketch15
pad5.setExpression("Length", "Params.pad5_length")
pad5.Reversed = True

# Sketch on YZ plane
sketch16 = doc.addObject("Sketcher::SketchObject", "Sketch015")
body.addObject(sketch16)
sketch16.AttachmentSupport = (doc.YZ_Plane, [""])
sketch16.MapMode = "FlatFace"
sketch16.AttachmentOffset = App.Placement(V(0, 0, -252.941176), App.Rotation())
sketch16.addGeometry(Part.LineSegment(V(100, 362, 0), V(20, 362, 0)), False)
sketch16.addGeometry(Part.LineSegment(V(20, 362, 0), V(20, 222, 0)), False)
sketch16.addGeometry(Part.LineSegment(V(20, 222, 0), V(100, 222, 0)), False)
sketch16.addGeometry(Part.LineSegment(V(100, 222, 0), V(100, 362, 0)), False)
sketch16.addConstraint(Sketcher.Constraint("Coincident", 0, 2, 1, 1))
sketch16.addConstraint(Sketcher.Constraint("Coincident", 1, 2, 2, 1))
sketch16.addConstraint(Sketcher.Constraint("Coincident", 2, 2, 3, 1))
sketch16.addConstraint(Sketcher.Constraint("Coincident", 3, 2, 0, 1))
sketch16.addConstraint(Sketcher.Constraint("Horizontal", 0))
sketch16.addConstraint(Sketcher.Constraint("Vertical", 1))
sketch16.addConstraint(Sketcher.Constraint("Horizontal", 2))
sketch16.addConstraint(Sketcher.Constraint("Vertical", 3))
sketch16.addConstraint(Sketcher.Constraint("DistanceX", 0, 2, 0, 1, 80.0))
sketch16.addConstraint(Sketcher.Constraint("DistanceY", 1, 2, 1, 1, 140.0))
sketch16.addConstraint(Sketcher.Constraint("DistanceX", -1, 1, 0, 2, 20.0))
sketch16.addConstraint(Sketcher.Constraint("DistanceY", -1, 1, 0, 2, 361.921569))
sketch16.setExpression("Constraints[8]", "Params.sketch16_width")
sketch16.setExpression("Constraints[9]", "Params.sketch16_height")
pocket11 = doc.addObject("PartDesign::Pocket", "Pocket010")
body.addObject(pocket11)
pocket11.Profile = sketch16
pocket11.Type = "ThroughAll"

# Sketch on XZ plane
sketch17 = doc.addObject("Sketcher::SketchObject", "Sketch016")
body.addObject(sketch17)
sketch17.AttachmentSupport = (doc.XZ_Plane, [""])
sketch17.MapMode = "FlatFace"
sketch17.AttachmentOffset = App.Placement(V(0, 0, -20), App.Rotation())
sketch17.addGeometry(Part.LineSegment(V(127, -158, 0), V(127, -138, 0)), False)
sketch17.addGeometry(Part.LineSegment(V(127, -138, 0), V(307, -138, 0)), False)
sketch17.addGeometry(Part.LineSegment(V(307, -138, 0), V(307, -158, 0)), False)
sketch17.addGeometry(Part.LineSegment(V(307, -158, 0), V(127, -158, 0)), False)
sketch17.addConstraint(Sketcher.Constraint("Coincident", 0, 2, 1, 1))
sketch17.addConstraint(Sketcher.Constraint("Coincident", 1, 2, 2, 1))
sketch17.addConstraint(Sketcher.Constraint("Coincident", 2, 2, 3, 1))
sketch17.addConstraint(Sketcher.Constraint("Coincident", 3, 2, 0, 1))
sketch17.addConstraint(Sketcher.Constraint("Vertical", 0))
sketch17.addConstraint(Sketcher.Constraint("Horizontal", 1))
sketch17.addConstraint(Sketcher.Constraint("Vertical", 2))
sketch17.addConstraint(Sketcher.Constraint("Horizontal", 3))
sketch17.addConstraint(Sketcher.Constraint("DistanceX", 1, 1, 1, 2, 180.0))
sketch17.addConstraint(Sketcher.Constraint("DistanceY", 0, 1, 0, 2, 20.0))
sketch17.addConstraint(Sketcher.Constraint("DistanceY", 0, 2, -1, 1, 138.078431))
sketch17.addConstraint(Sketcher.Constraint("DistanceX", -1, 1, 0, 2, 127.058824))
sketch17.setExpression("Constraints[8]", "Params.sketch17_width")
sketch17.setExpression("Constraints[9]", "Params.sketch17_height")
pad6 = doc.addObject("PartDesign::Pad", "Pad005")
body.addObject(pad6)
pad6.Profile = sketch17
pad6.setExpression("Length", "Params.pad6_length")
pad6.Reversed = True

# Sketch on XY plane
sketch18 = doc.addObject("Sketcher::SketchObject", "Sketch017")
body.addObject(sketch18)
sketch18.AttachmentSupport = (doc.XY_Plane, [""])
sketch18.MapMode = "FlatFace"
sketch18.AttachmentOffset = App.Placement(V(0, 0, -138.078431), App.Rotation())
sketch18.addGeometry(Part.LineSegment(V(147, 100, 0), V(147, 20, 0)), False)
sketch18.addGeometry(Part.LineSegment(V(147, 20, 0), V(287, 20, 0)), False)
sketch18.addGeometry(Part.LineSegment(V(287, 20, 0), V(287, 100, 0)), False)
sketch18.addGeometry(Part.LineSegment(V(287, 100, 0), V(147, 100, 0)), False)
sketch18.addConstraint(Sketcher.Constraint("Coincident", 0, 2, 1, 1))
sketch18.addConstraint(Sketcher.Constraint("Coincident", 1, 2, 2, 1))
sketch18.addConstraint(Sketcher.Constraint("Coincident", 2, 2, 3, 1))
sketch18.addConstraint(Sketcher.Constraint("Coincident", 3, 2, 0, 1))
sketch18.addConstraint(Sketcher.Constraint("Vertical", 0))
sketch18.addConstraint(Sketcher.Constraint("Horizontal", 1))
sketch18.addConstraint(Sketcher.Constraint("Vertical", 2))
sketch18.addConstraint(Sketcher.Constraint("Horizontal", 3))
sketch18.addConstraint(Sketcher.Constraint("DistanceX", 1, 1, 1, 2, 140.0))
sketch18.addConstraint(Sketcher.Constraint("DistanceY", 0, 2, 0, 1, 80.0))
sketch18.addConstraint(Sketcher.Constraint("DistanceY", -1, 1, 0, 2, 20.0))
sketch18.addConstraint(Sketcher.Constraint("DistanceX", -1, 1, 0, 2, 147.058824))
sketch18.setExpression("Constraints[8]", "Params.sketch18_width")
sketch18.setExpression("Constraints[9]", "Params.sketch18_height")
pocket12 = doc.addObject("PartDesign::Pocket", "Pocket011")
body.addObject(pocket12)
pocket12.Profile = sketch18
pocket12.Type = "ThroughAll"

# Sketch on XZ plane
sketch19 = doc.addObject("Sketcher::SketchObject", "Sketch018")
body.addObject(sketch19)
sketch19.AttachmentSupport = (doc.XZ_Plane, [""])
sketch19.MapMode = "FlatFace"
sketch19.AttachmentOffset = App.Placement(V(0, 0, -20), App.Rotation())
sketch19.addGeometry(Part.LineSegment(V(287, -138, 0), V(287, 2, 0)), False)
sketch19.addGeometry(Part.LineSegment(V(287, 2, 0), V(307, 2, 0)), False)
sketch19.addGeometry(Part.LineSegment(V(307, 2, 0), V(307, -138, 0)), False)
sketch19.addGeometry(Part.LineSegment(V(307, -138, 0), V(287, -138, 0)), False)
sketch19.addConstraint(Sketcher.Constraint("Coincident", 0, 2, 1, 1))
sketch19.addConstraint(Sketcher.Constraint("Coincident", 1, 2, 2, 1))
sketch19.addConstraint(Sketcher.Constraint("Coincident", 2, 2, 3, 1))
sketch19.addConstraint(Sketcher.Constraint("Coincident", 3, 2, 0, 1))
sketch19.addConstraint(Sketcher.Constraint("Vertical", 0))
sketch19.addConstraint(Sketcher.Constraint("Horizontal", 1))
sketch19.addConstraint(Sketcher.Constraint("Vertical", 2))
sketch19.addConstraint(Sketcher.Constraint("Horizontal", 3))
sketch19.addConstraint(Sketcher.Constraint("DistanceX", 1, 1, 1, 2, 20.0))
sketch19.addConstraint(Sketcher.Constraint("DistanceY", 0, 1, 0, 2, 140.0))
sketch19.addConstraint(Sketcher.Constraint("DistanceY", -1, 1, 0, 2, 1.921569))
sketch19.addConstraint(Sketcher.Constraint("DistanceX", -1, 1, 0, 2, 287.058824))
sketch19.setExpression("Constraints[8]", "Params.sketch19_width")
sketch19.setExpression("Constraints[9]", "Params.sketch19_height")
pad7 = doc.addObject("PartDesign::Pad", "Pad006")
body.addObject(pad7)
pad7.Profile = sketch19
pad7.setExpression("Length", "Params.pad7_length")
pad7.Reversed = True

# Sketch on YZ plane
sketch20 = doc.addObject("Sketcher::SketchObject", "Sketch019")
body.addObject(sketch20)
sketch20.AttachmentSupport = (doc.YZ_Plane, [""])
sketch20.MapMode = "FlatFace"
sketch20.AttachmentOffset = App.Placement(V(0, 0, 307.058824), App.Rotation())
sketch20.addGeometry(Part.LineSegment(V(100, -18, 0), V(20, -18, 0)), False)
sketch20.addGeometry(Part.LineSegment(V(20, -18, 0), V(20, -138, 0)), False)
sketch20.addGeometry(Part.LineSegment(V(20, -138, 0), V(100, -138, 0)), False)
sketch20.addGeometry(Part.LineSegment(V(100, -138, 0), V(100, -18, 0)), False)
sketch20.addConstraint(Sketcher.Constraint("Coincident", 0, 2, 1, 1))
sketch20.addConstraint(Sketcher.Constraint("Coincident", 1, 2, 2, 1))
sketch20.addConstraint(Sketcher.Constraint("Coincident", 2, 2, 3, 1))
sketch20.addConstraint(Sketcher.Constraint("Coincident", 3, 2, 0, 1))
sketch20.addConstraint(Sketcher.Constraint("Horizontal", 0))
sketch20.addConstraint(Sketcher.Constraint("Vertical", 1))
sketch20.addConstraint(Sketcher.Constraint("Horizontal", 2))
sketch20.addConstraint(Sketcher.Constraint("Vertical", 3))
sketch20.addConstraint(Sketcher.Constraint("DistanceX", 0, 2, 0, 1, 80.0))
sketch20.addConstraint(Sketcher.Constraint("DistanceY", 1, 2, 1, 1, 120.0))
sketch20.addConstraint(Sketcher.Constraint("DistanceX", -1, 1, 0, 2, 20.0))
sketch20.addConstraint(Sketcher.Constraint("DistanceY", 0, 2, -1, 1, 18.078431))
sketch20.setExpression("Constraints[8]", "Params.sketch20_width")
sketch20.setExpression("Constraints[9]", "Params.sketch20_height")
pocket13 = doc.addObject("PartDesign::Pocket", "Pocket012")
body.addObject(pocket13)
pocket13.Profile = sketch20
pocket13.Type = "ThroughAll"

# Sketch on XZ plane
sketch21 = doc.addObject("Sketcher::SketchObject", "Sketch020")
body.addObject(sketch21)
sketch21.AttachmentSupport = (doc.XZ_Plane, [""])
sketch21.MapMode = "FlatFace"
sketch21.AttachmentOffset = App.Placement(V(0, 0, -20), App.Rotation())
sketch21.addGeometry(Part.LineSegment(V(127, 362, 0), V(127, 382, 0)), False)
sketch21.addGeometry(Part.LineSegment(V(127, 382, 0), V(307, 382, 0)), False)
sketch21.addGeometry(Part.LineSegment(V(307, 382, 0), V(307, 362, 0)), False)
sketch21.addGeometry(Part.LineSegment(V(307, 362, 0), V(127, 362, 0)), False)
sketch21.addConstraint(Sketcher.Constraint("Coincident", 0, 2, 1, 1))
sketch21.addConstraint(Sketcher.Constraint("Coincident", 1, 2, 2, 1))
sketch21.addConstraint(Sketcher.Constraint("Coincident", 2, 2, 3, 1))
sketch21.addConstraint(Sketcher.Constraint("Coincident", 3, 2, 0, 1))
sketch21.addConstraint(Sketcher.Constraint("Vertical", 0))
sketch21.addConstraint(Sketcher.Constraint("Horizontal", 1))
sketch21.addConstraint(Sketcher.Constraint("Vertical", 2))
sketch21.addConstraint(Sketcher.Constraint("Horizontal", 3))
sketch21.addConstraint(Sketcher.Constraint("DistanceX", 1, 1, 1, 2, 180.0))
sketch21.addConstraint(Sketcher.Constraint("DistanceY", 0, 1, 0, 2, 20.0))
sketch21.addConstraint(Sketcher.Constraint("DistanceY", -1, 1, 0, 2, 381.921569))
sketch21.addConstraint(Sketcher.Constraint("DistanceX", -1, 1, 0, 2, 127.058824))
sketch21.setExpression("Constraints[8]", "Params.sketch21_width")
sketch21.setExpression("Constraints[9]", "Params.sketch21_height")
pad8 = doc.addObject("PartDesign::Pad", "Pad007")
body.addObject(pad8)
pad8.Profile = sketch21
pad8.setExpression("Length", "Params.pad8_length")
pad8.Reversed = True

# Sketch on XY plane
sketch22 = doc.addObject("Sketcher::SketchObject", "Sketch021")
body.addObject(sketch22)
sketch22.AttachmentSupport = (doc.XY_Plane, [""])
sketch22.MapMode = "FlatFace"
sketch22.AttachmentOffset = App.Placement(V(0, 0, 361.921569), App.Rotation())
sketch22.addGeometry(Part.LineSegment(V(287, 100, 0), V(287, 20, 0)), False)
sketch22.addGeometry(Part.LineSegment(V(287, 20, 0), V(147, 20, 0)), False)
sketch22.addGeometry(Part.LineSegment(V(147, 20, 0), V(147, 100, 0)), False)
sketch22.addGeometry(Part.LineSegment(V(147, 100, 0), V(287, 100, 0)), False)
sketch22.addConstraint(Sketcher.Constraint("Coincident", 0, 2, 1, 1))
sketch22.addConstraint(Sketcher.Constraint("Coincident", 1, 2, 2, 1))
sketch22.addConstraint(Sketcher.Constraint("Coincident", 2, 2, 3, 1))
sketch22.addConstraint(Sketcher.Constraint("Coincident", 3, 2, 0, 1))
sketch22.addConstraint(Sketcher.Constraint("Vertical", 0))
sketch22.addConstraint(Sketcher.Constraint("Horizontal", 1))
sketch22.addConstraint(Sketcher.Constraint("Vertical", 2))
sketch22.addConstraint(Sketcher.Constraint("Horizontal", 3))
sketch22.addConstraint(Sketcher.Constraint("DistanceX", 1, 2, 1, 1, 140.0))
sketch22.addConstraint(Sketcher.Constraint("DistanceY", 0, 2, 0, 1, 80.0))
sketch22.addConstraint(Sketcher.Constraint("DistanceY", -1, 1, 0, 2, 20.0))
sketch22.addConstraint(Sketcher.Constraint("DistanceX", -1, 1, 0, 2, 287.058824))
sketch22.setExpression("Constraints[8]", "Params.sketch22_width")
sketch22.setExpression("Constraints[9]", "Params.sketch22_height")
pocket14 = doc.addObject("PartDesign::Pocket", "Pocket013")
body.addObject(pocket14)
pocket14.Profile = sketch22
pocket14.setExpression("Length", "Params.pocket14_length")
pocket14.Reversed = True

# Sketch on XZ plane
sketch23 = doc.addObject("Sketcher::SketchObject", "Sketch022")
body.addObject(sketch23)
sketch23.AttachmentSupport = (doc.XZ_Plane, [""])
sketch23.MapMode = "FlatFace"
sketch23.AttachmentOffset = App.Placement(V(0, 0, -20), App.Rotation())
sketch23.addGeometry(Part.LineSegment(V(287, 222, 0), V(287, 362, 0)), False)
sketch23.addGeometry(Part.LineSegment(V(287, 362, 0), V(307, 362, 0)), False)
sketch23.addGeometry(Part.LineSegment(V(307, 362, 0), V(307, 222, 0)), False)
sketch23.addGeometry(Part.LineSegment(V(307, 222, 0), V(287, 222, 0)), False)
sketch23.addConstraint(Sketcher.Constraint("Coincident", 0, 2, 1, 1))
sketch23.addConstraint(Sketcher.Constraint("Coincident", 1, 2, 2, 1))
sketch23.addConstraint(Sketcher.Constraint("Coincident", 2, 2, 3, 1))
sketch23.addConstraint(Sketcher.Constraint("Coincident", 3, 2, 0, 1))
sketch23.addConstraint(Sketcher.Constraint("Vertical", 0))
sketch23.addConstraint(Sketcher.Constraint("Horizontal", 1))
sketch23.addConstraint(Sketcher.Constraint("Vertical", 2))
sketch23.addConstraint(Sketcher.Constraint("Horizontal", 3))
sketch23.addConstraint(Sketcher.Constraint("DistanceX", 1, 1, 1, 2, 20.0))
sketch23.addConstraint(Sketcher.Constraint("DistanceY", 0, 1, 0, 2, 140.0))
sketch23.addConstraint(Sketcher.Constraint("DistanceY", -1, 1, 0, 2, 361.921569))
sketch23.addConstraint(Sketcher.Constraint("DistanceX", -1, 1, 0, 2, 287.058824))
sketch23.setExpression("Constraints[8]", "Params.sketch23_width")
sketch23.setExpression("Constraints[9]", "Params.sketch23_height")
pad9 = doc.addObject("PartDesign::Pad", "Pad008")
body.addObject(pad9)
pad9.Profile = sketch23
pad9.setExpression("Length", "Params.pad9_length")
pad9.Reversed = True

# Sketch on YZ plane
sketch24 = doc.addObject("Sketcher::SketchObject", "Sketch023")
body.addObject(sketch24)
sketch24.AttachmentSupport = (doc.YZ_Plane, [""])
sketch24.MapMode = "FlatFace"
sketch24.AttachmentOffset = App.Placement(V(0, 0, 287.058824), App.Rotation())
sketch24.addGeometry(Part.LineSegment(V(100, 242, 0), V(20, 242, 0)), False)
sketch24.addGeometry(Part.LineSegment(V(20, 242, 0), V(20, 362, 0)), False)
sketch24.addGeometry(Part.LineSegment(V(20, 362, 0), V(100, 362, 0)), False)
sketch24.addGeometry(Part.LineSegment(V(100, 362, 0), V(100, 242, 0)), False)
sketch24.addConstraint(Sketcher.Constraint("Coincident", 0, 2, 1, 1))
sketch24.addConstraint(Sketcher.Constraint("Coincident", 1, 2, 2, 1))
sketch24.addConstraint(Sketcher.Constraint("Coincident", 2, 2, 3, 1))
sketch24.addConstraint(Sketcher.Constraint("Coincident", 3, 2, 0, 1))
sketch24.addConstraint(Sketcher.Constraint("Horizontal", 0))
sketch24.addConstraint(Sketcher.Constraint("Vertical", 1))
sketch24.addConstraint(Sketcher.Constraint("Horizontal", 2))
sketch24.addConstraint(Sketcher.Constraint("Vertical", 3))
sketch24.addConstraint(Sketcher.Constraint("DistanceX", 0, 2, 0, 1, 80.0))
sketch24.addConstraint(Sketcher.Constraint("DistanceY", 1, 1, 1, 2, 120.0))
sketch24.addConstraint(Sketcher.Constraint("DistanceX", -1, 1, 0, 2, 20.0))
sketch24.addConstraint(Sketcher.Constraint("DistanceY", -1, 1, 0, 2, 241.921569))
sketch24.setExpression("Constraints[8]", "Params.sketch24_width")
sketch24.setExpression("Constraints[9]", "Params.sketch24_height")
pocket15 = doc.addObject("PartDesign::Pocket", "Pocket014")
body.addObject(pocket15)
pocket15.Profile = sketch24
pocket15.setExpression("Length", "Params.pocket15_length")
pocket15.Reversed = True

doc.recompute()
